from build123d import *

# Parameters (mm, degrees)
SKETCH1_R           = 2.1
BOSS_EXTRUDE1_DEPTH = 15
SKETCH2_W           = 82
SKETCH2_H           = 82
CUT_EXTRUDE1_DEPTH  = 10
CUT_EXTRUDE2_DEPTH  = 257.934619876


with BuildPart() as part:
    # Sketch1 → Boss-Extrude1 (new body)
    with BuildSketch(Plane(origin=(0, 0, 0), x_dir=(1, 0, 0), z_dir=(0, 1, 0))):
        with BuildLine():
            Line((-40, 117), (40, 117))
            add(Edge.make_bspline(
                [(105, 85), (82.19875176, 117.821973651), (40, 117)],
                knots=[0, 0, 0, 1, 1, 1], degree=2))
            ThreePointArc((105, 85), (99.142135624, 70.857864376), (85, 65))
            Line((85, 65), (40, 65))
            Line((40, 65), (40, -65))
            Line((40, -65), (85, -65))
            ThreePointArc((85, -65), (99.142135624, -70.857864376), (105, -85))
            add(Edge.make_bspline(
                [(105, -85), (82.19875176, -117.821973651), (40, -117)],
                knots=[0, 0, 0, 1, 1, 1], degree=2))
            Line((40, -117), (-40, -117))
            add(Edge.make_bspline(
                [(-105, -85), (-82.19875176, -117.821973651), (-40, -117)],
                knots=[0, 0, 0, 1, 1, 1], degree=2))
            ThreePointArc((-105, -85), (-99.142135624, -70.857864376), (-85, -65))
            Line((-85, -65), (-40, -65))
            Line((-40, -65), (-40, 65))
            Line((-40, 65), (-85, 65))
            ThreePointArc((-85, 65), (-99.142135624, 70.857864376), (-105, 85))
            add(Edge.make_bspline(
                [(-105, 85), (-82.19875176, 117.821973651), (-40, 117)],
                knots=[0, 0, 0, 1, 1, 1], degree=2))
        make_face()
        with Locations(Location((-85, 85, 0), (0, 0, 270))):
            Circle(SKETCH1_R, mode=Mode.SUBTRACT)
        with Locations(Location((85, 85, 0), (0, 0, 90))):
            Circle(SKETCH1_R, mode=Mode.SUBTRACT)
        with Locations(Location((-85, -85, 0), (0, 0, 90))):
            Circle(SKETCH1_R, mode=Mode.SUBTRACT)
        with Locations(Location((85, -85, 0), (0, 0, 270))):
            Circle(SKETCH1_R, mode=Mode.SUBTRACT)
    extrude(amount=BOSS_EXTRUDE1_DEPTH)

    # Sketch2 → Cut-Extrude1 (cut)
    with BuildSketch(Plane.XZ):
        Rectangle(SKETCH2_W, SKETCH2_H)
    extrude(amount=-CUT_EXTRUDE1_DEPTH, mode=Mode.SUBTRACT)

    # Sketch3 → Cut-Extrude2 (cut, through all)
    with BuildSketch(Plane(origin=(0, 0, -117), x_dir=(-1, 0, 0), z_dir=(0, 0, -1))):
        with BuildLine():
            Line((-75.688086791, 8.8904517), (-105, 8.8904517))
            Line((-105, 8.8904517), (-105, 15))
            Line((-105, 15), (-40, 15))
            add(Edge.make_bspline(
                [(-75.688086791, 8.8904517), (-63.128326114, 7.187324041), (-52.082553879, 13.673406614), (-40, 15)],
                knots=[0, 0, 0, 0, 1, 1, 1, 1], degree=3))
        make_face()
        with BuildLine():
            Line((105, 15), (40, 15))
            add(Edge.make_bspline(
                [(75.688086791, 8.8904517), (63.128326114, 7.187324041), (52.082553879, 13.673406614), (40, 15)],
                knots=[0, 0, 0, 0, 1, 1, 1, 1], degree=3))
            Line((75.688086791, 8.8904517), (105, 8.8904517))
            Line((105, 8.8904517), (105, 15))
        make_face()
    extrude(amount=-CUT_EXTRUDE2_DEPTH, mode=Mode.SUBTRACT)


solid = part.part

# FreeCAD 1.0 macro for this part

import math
import FreeCAD as App
import Part
import Sketcher

doc = App.newDocument("Part")
body = doc.addObject("PartDesign::Body", "Body")

sketch1 = doc.addObject("Sketcher::SketchObject", "Sketch")
body.addObject(sketch1)
sketch1.AttachmentSupport = (doc.XZ_Plane, [""])
sketch1.MapMode = "FlatFace"
sketch1.addGeometry([
    Part.LineSegment(App.Vector(40, -117, 0), App.Vector(-40, -117, 0)),
    Part.BSplineCurve([App.Vector(-105, -85, 0), App.Vector(-82.198752, -117.821974, 0), App.Vector(-40, -117, 0)], [3, 3], [0, 1], False, 2, [1, 1, 1], False),
    Part.ArcOfCircle(Part.Circle(App.Vector(-85, -85, 0), App.Vector(0, 0, 1), 20), math.radians(90), math.radians(180)),
    Part.LineSegment(App.Vector(-85, -65, 0), App.Vector(-40, -65, 0)),
    Part.LineSegment(App.Vector(-40, -65, 0), App.Vector(-40, 65, 0)),
    Part.LineSegment(App.Vector(-40, 65, 0), App.Vector(-85, 65, 0)),
    Part.ArcOfCircle(Part.Circle(App.Vector(-85, 85, 0), App.Vector(0, 0, 1), 20), math.radians(180), math.radians(270)),
    Part.BSplineCurve([App.Vector(-105, 85, 0), App.Vector(-82.198752, 117.821974, 0), App.Vector(-40, 117, 0)], [3, 3], [0, 1], False, 2, [1, 1, 1], False),
    Part.LineSegment(App.Vector(-40, 117, 0), App.Vector(40, 117, 0)),
    Part.BSplineCurve([App.Vector(105, 85, 0), App.Vector(82.198752, 117.821974, 0), App.Vector(40, 117, 0)], [3, 3], [0, 1], False, 2, [1, 1, 1], False),
    Part.ArcOfCircle(Part.Circle(App.Vector(85, 85, 0), App.Vector(0, 0, 1), 20), math.radians(-90), math.radians(0)),
    Part.LineSegment(App.Vector(85, 65, 0), App.Vector(40, 65, 0)),
    Part.LineSegment(App.Vector(40, 65, 0), App.Vector(40, -65, 0)),
    Part.LineSegment(App.Vector(40, -65, 0), App.Vector(85, -65, 0)),
    Part.ArcOfCircle(Part.Circle(App.Vector(85, -85, 0), App.Vector(0, 0, 1), 20), math.radians(0), math.radians(90)),
    Part.BSplineCurve([App.Vector(105, -85, 0), App.Vector(82.198752, -117.821974, 0), App.Vector(40, -117, 0)], [3, 3], [0, 1], False, 2, [1, 1, 1], False),
    Part.Circle(App.Vector(85, 85, 0), App.Vector(0, 0, 1), 2.1),
    Part.Circle(App.Vector(-85, 85, 0), App.Vector(0, 0, 1), 2.1),
    Part.Circle(App.Vector(85, -85, 0), App.Vector(0, 0, 1), 2.1),
    Part.Circle(App.Vector(-85, -85, 0), App.Vector(0, 0, 1), 2.1),
], False)
sketch1.addConstraint([
    Sketcher.Constraint("Block", 1),
    Sketcher.Constraint("Block", 7),
    Sketcher.Constraint("Block", 9),
    Sketcher.Constraint("Block", 15),
    Sketcher.Constraint("Coincident", 0, 2, 1, 2),
    Sketcher.Constraint("Coincident", 1, 1, 2, 2),
    Sketcher.Constraint("Coincident", 2, 1, 3, 1),
    Sketcher.Constraint("Coincident", 3, 2, 4, 1),
    Sketcher.Constraint("Coincident", 4, 2, 5, 1),
    Sketcher.Constraint("Coincident", 5, 2, 6, 2),
    Sketcher.Constraint("Coincident", 6, 1, 7, 1),
    Sketcher.Constraint("Coincident", 7, 2, 8, 1),
    Sketcher.Constraint("Coincident", 8, 2, 9, 2),
    Sketcher.Constraint("Coincident", 9, 1, 10, 2),
    Sketcher.Constraint("Coincident", 10, 1, 11, 1),
    Sketcher.Constraint("Coincident", 11, 2, 12, 1),
    Sketcher.Constraint("Coincident", 12, 2, 13, 1),
    Sketcher.Constraint("Coincident", 13, 2, 14, 2),
    Sketcher.Constraint("Coincident", 14, 1, 15, 1),
    Sketcher.Constraint("Coincident", 15, 2, 0, 1),
    Sketcher.Constraint("Horizontal", 3),
    Sketcher.Constraint("Vertical", 4),
    Sketcher.Constraint("Horizontal", 5),
    Sketcher.Constraint("Horizontal", 11),
    Sketcher.Constraint("Vertical", 12),
    Sketcher.Constraint("Horizontal", 13),
    Sketcher.Constraint("Coincident", 16, 3, 10, 3),
    Sketcher.Constraint("Coincident", 17, 3, 6, 3),
    Sketcher.Constraint("Coincident", 18, 3, 14, 3),
    Sketcher.Constraint("Coincident", 19, 3, 2, 3),
    Sketcher.Constraint("Radius", 2, 20.0),
    Sketcher.Constraint("Radius", 6, 20.0),
    Sketcher.Constraint("Radius", 10, 20.0),
    Sketcher.Constraint("Radius", 14, 20.0),
    Sketcher.Constraint("Diameter", 16, 4.2),
    Sketcher.Constraint("Diameter", 17, 4.2),
    Sketcher.Constraint("Diameter", 18, 4.2),
    Sketcher.Constraint("Diameter", 19, 4.2),
    Sketcher.Constraint("DistanceX", 3, 1, 3, 2, 45.0),
    Sketcher.Constraint("DistanceX", 5, 2, 5, 1, 45.0),
    Sketcher.Constraint("DistanceX", 11, 2, 11, 1, 45.0),
    Sketcher.Constraint("DistanceX", 13, 1, 13, 2, 45.0),
    Sketcher.Constraint("DistanceY", 4, 1, 4, 2, 130.0),
    Sketcher.Constraint("DistanceY", 12, 2, 12, 1, 130.0),
    Sketcher.Constraint("DistanceY", 2, 3, -1, 1, 85.0),
    Sketcher.Constraint("DistanceY", -1, 1, 10, 3, 85.0),
    Sketcher.Constraint("DistanceX", 2, 1, -1, 1, 85.0),
    Sketcher.Constraint("DistanceX", -1, 1, 10, 1, 85.0),
])
pad1 = doc.addObject("PartDesign::Pad", "Pad")
body.addObject(pad1)
pad1.Profile = sketch1
pad1.Length = 15
pad1.Reversed = True

sketch2 = doc.addObject("Sketcher::SketchObject", "Sketch001")
body.addObject(sketch2)
sketch2.AttachmentSupport = (doc.XZ_Plane, [""])
sketch2.MapMode = "FlatFace"
sketch2.addGeometry([
    Part.LineSegment(App.Vector(-41, 41, 0), App.Vector(-41, -41, 0)),
    Part.LineSegment(App.Vector(-41, -41, 0), App.Vector(41, -41, 0)),
    Part.LineSegment(App.Vector(41, -41, 0), App.Vector(41, 41, 0)),
    Part.LineSegment(App.Vector(41, 41, 0), App.Vector(-41, 41, 0)),
], False)
sketch2.addConstraint([
    Sketcher.Constraint("Coincident", 0, 2, 1, 1),
    Sketcher.Constraint("Coincident", 1, 2, 2, 1),
    Sketcher.Constraint("Coincident", 2, 2, 3, 1),
    Sketcher.Constraint("Coincident", 3, 2, 0, 1),
    Sketcher.Constraint("Vertical", 0),
    Sketcher.Constraint("Horizontal", 1),
    Sketcher.Constraint("Vertical", 2),
    Sketcher.Constraint("Horizontal", 3),
    Sketcher.Constraint("Symmetric", 0, 2, 2, 2, -1, 1),
    Sketcher.Constraint("Equal", 3, 0),
    Sketcher.Constraint("DistanceX", 1, 1, 1, 2, 82.0),
])
pocket1 = doc.addObject("PartDesign::Pocket", "Pocket")
body.addObject(pocket1)
pocket1.Profile = sketch2
pocket1.Length = 10

sketch3 = doc.addObject("Sketcher::SketchObject", "Sketch002")
body.addObject(sketch3)
sketch3.AttachmentSupport = (doc.XY_Plane, [""])
sketch3.MapMode = "FlatFace"
sketch3.AttachmentOffset = App.Placement(App.Vector(0, 0, -117), App.Rotation())
sketch3.addGeometry([
    Part.LineSegment(App.Vector(105, 8.890452, 0), App.Vector(75.688087, 8.890452, 0)),
    Part.BSplineCurve([App.Vector(75.688087, 8.890452, 0), App.Vector(63.128326, 7.187324, 0), App.Vector(52.082554, 13.673407, 0), App.Vector(40, 15, 0)], [4, 4], [0, 1], False, 3, [1, 1, 1, 1], False),
    Part.LineSegment(App.Vector(40, 15, 0), App.Vector(105, 15, 0)),
    Part.LineSegment(App.Vector(105, 15, 0), App.Vector(105, 8.890452, 0)),
    Part.LineSegment(App.Vector(-105, 15, 0), App.Vector(-40, 15, 0)),
    Part.BSplineCurve([App.Vector(-75.688087, 8.890452, 0), App.Vector(-63.128326, 7.187324, 0), App.Vector(-52.082554, 13.673407, 0), App.Vector(-40, 15, 0)], [4, 4], [0, 1], False, 3, [1, 1, 1, 1], False),
    Part.LineSegment(App.Vector(-75.688087, 8.890452, 0), App.Vector(-105, 8.890452, 0)),
    Part.LineSegment(App.Vector(-105, 8.890452, 0), App.Vector(-105, 15, 0)),
], False)
sketch3.addConstraint([
    Sketcher.Constraint("Block", 1),
    Sketcher.Constraint("Block", 5),
    Sketcher.Constraint("Coincident", 0, 2, 1, 1),
    Sketcher.Constraint("Coincident", 1, 2, 2, 1),
    Sketcher.Constraint("Coincident", 2, 2, 3, 1),
    Sketcher.Constraint("Coincident", 3, 2, 0, 1),
    Sketcher.Constraint("Coincident", 4, 2, 5, 2),
    Sketcher.Constraint("Coincident", 5, 1, 6, 1),
    Sketcher.Constraint("Coincident", 6, 2, 7, 1),
    Sketcher.Constraint("Coincident", 7, 2, 4, 1),
    Sketcher.Constraint("Horizontal", 0),
    Sketcher.Constraint("Horizontal", 2),
    Sketcher.Constraint("Vertical", 3),
    Sketcher.Constraint("Horizontal", 4),
    Sketcher.Constraint("Horizontal", 6),
    Sketcher.Constraint("Vertical", 7),
    Sketcher.Constraint("Equal", 2, 4),
    Sketcher.Constraint("DistanceX", 2, 1, 2, 2, 65.0),
])
pocket2 = doc.addObject("PartDesign::Pocket", "Pocket001")
body.addObject(pocket2)
pocket2.Profile = sketch3
pocket2.Type = "ThroughAll"
pocket2.Reversed = True

doc.recompute()
